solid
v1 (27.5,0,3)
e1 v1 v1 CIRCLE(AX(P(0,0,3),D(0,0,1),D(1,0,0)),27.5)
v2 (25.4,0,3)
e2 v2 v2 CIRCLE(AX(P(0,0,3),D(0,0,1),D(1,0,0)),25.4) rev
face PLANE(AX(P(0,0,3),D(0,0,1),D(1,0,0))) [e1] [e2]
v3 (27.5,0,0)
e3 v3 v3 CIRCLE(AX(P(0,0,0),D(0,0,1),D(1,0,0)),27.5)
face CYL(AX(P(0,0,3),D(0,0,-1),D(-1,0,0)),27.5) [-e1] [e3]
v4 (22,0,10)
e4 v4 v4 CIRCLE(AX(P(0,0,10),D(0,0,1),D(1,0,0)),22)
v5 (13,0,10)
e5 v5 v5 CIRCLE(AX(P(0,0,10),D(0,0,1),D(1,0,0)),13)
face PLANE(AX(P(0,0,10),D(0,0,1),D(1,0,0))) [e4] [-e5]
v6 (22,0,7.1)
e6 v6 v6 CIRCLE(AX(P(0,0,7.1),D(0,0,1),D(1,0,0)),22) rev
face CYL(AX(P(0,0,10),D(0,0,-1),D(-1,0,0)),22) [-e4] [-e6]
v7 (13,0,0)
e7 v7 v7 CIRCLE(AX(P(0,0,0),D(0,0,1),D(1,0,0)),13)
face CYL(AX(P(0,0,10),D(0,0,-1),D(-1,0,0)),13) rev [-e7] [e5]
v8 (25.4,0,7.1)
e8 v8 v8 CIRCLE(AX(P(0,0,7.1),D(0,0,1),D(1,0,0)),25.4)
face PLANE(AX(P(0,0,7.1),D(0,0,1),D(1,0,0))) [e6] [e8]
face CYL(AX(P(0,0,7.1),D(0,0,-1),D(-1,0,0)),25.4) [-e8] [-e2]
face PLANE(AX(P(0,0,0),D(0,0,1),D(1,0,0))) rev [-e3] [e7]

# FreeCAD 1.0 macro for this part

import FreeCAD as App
import Part
import Sketcher
Q = App.Units.Quantity

doc = App.newDocument("Part")
params = doc.addObject("Spreadsheet::Sheet", "Params")
for row, (alias, value) in enumerate([
    ("sketch1_diameter", "55 mm"),
    ("pad1_length", "3 mm"),
    ("sketch2_diameter", "50.8 mm"),
    ("pad2_length", "7.1 mm"),
    ("sketch3_diameter", "44 mm"),
    ("pad3_length", "10 mm"),
    ("sketch4_diameter", "26 mm"),
    ("pocket1_length", "10 mm"),
], start=1):
    params.set(f"A{row}", alias)
    params.set(f"B{row}", "=" + value)
    params.setAlias(f"B{row}", alias)

body = doc.addObject("PartDesign::Body", "Body")

# Sketch on XY plane
sketch1 = body.newObject("Sketcher::SketchObject", "Sketch")
sketch1.AttachmentSupport = (doc.getObject("XY_Plane"), [""])
sketch1.MapMode = "FlatFace"
sketch1.addGeometry(Part.Circle(App.Vector(0, 0, 0), App.Vector(0, 0, 1), 28), False)
sketch1.addConstraint([
    Sketcher.Constraint("Coincident", 0, 3, -1, 1),
    Sketcher.Constraint("Diameter", 0, Q("55 mm")),
])
sketch1.setExpression("Constraints[1]", "Params.sketch1_diameter")
pad1 = body.newObject("PartDesign::Pad", "Pad")
pad1.Profile = sketch1
pad1.setExpression("Length", "Params.pad1_length")

# Sketch on XY plane
sketch2 = body.newObject("Sketcher::SketchObject", "Sketch001")
sketch2.AttachmentSupport = (doc.getObject("XY_Plane"), [""])
sketch2.MapMode = "FlatFace"
sketch2.addGeometry(Part.Circle(App.Vector(0, 0, 0), App.Vector(0, 0, 1), 25), False)
sketch2.addConstraint([
    Sketcher.Constraint("Coincident", 0, 3, -1, 1),
    Sketcher.Constraint("Diameter", 0, Q("50.8 mm")),
])
sketch2.setExpression("Constraints[1]", "Params.sketch2_diameter")
pad2 = body.newObject("PartDesign::Pad", "Pad001")
pad2.Profile = sketch2
pad2.setExpression("Length", "Params.pad2_length")

# Sketch on XY plane
sketch3 = body.newObject("Sketcher::SketchObject", "Sketch002")
sketch3.AttachmentSupport = (doc.getObject("XY_Plane"), [""])
sketch3.MapMode = "FlatFace"
sketch3.addGeometry(Part.Circle(App.Vector(0, 0, 0), App.Vector(0, 0, 1), 22), False)
sketch3.addConstraint([
    Sketcher.Constraint("Coincident", 0, 3, -1, 1),
    Sketcher.Constraint("Diameter", 0, Q("44 mm")),
])
sketch3.setExpression("Constraints[1]", "Params.sketch3_diameter")
pad3 = body.newObject("PartDesign::Pad", "Pad002")
pad3.Profile = sketch3
pad3.setExpression("Length", "Params.pad3_length")

# Sketch on XY plane
sketch4 = body.newObject("Sketcher::SketchObject", "Sketch003")
sketch4.AttachmentSupport = (doc.getObject("XY_Plane"), [""])
sketch4.MapMode = "FlatFace"
sketch4.addGeometry(Part.Circle(App.Vector(0, 0, 0), App.Vector(0, 0, 1), 13), False)
sketch4.addConstraint([
    Sketcher.Constraint("Coincident", 0, 3, -1, 1),
    Sketcher.Constraint("Diameter", 0, Q("26 mm")),
])
sketch4.setExpression("Constraints[1]", "Params.sketch4_diameter")
pocket1 = body.newObject("PartDesign::Pocket", "Pocket")
pocket1.Profile = sketch4
pocket1.setExpression("Length", "Params.pocket1_length")
pocket1.Reversed = True

doc.recompute()
